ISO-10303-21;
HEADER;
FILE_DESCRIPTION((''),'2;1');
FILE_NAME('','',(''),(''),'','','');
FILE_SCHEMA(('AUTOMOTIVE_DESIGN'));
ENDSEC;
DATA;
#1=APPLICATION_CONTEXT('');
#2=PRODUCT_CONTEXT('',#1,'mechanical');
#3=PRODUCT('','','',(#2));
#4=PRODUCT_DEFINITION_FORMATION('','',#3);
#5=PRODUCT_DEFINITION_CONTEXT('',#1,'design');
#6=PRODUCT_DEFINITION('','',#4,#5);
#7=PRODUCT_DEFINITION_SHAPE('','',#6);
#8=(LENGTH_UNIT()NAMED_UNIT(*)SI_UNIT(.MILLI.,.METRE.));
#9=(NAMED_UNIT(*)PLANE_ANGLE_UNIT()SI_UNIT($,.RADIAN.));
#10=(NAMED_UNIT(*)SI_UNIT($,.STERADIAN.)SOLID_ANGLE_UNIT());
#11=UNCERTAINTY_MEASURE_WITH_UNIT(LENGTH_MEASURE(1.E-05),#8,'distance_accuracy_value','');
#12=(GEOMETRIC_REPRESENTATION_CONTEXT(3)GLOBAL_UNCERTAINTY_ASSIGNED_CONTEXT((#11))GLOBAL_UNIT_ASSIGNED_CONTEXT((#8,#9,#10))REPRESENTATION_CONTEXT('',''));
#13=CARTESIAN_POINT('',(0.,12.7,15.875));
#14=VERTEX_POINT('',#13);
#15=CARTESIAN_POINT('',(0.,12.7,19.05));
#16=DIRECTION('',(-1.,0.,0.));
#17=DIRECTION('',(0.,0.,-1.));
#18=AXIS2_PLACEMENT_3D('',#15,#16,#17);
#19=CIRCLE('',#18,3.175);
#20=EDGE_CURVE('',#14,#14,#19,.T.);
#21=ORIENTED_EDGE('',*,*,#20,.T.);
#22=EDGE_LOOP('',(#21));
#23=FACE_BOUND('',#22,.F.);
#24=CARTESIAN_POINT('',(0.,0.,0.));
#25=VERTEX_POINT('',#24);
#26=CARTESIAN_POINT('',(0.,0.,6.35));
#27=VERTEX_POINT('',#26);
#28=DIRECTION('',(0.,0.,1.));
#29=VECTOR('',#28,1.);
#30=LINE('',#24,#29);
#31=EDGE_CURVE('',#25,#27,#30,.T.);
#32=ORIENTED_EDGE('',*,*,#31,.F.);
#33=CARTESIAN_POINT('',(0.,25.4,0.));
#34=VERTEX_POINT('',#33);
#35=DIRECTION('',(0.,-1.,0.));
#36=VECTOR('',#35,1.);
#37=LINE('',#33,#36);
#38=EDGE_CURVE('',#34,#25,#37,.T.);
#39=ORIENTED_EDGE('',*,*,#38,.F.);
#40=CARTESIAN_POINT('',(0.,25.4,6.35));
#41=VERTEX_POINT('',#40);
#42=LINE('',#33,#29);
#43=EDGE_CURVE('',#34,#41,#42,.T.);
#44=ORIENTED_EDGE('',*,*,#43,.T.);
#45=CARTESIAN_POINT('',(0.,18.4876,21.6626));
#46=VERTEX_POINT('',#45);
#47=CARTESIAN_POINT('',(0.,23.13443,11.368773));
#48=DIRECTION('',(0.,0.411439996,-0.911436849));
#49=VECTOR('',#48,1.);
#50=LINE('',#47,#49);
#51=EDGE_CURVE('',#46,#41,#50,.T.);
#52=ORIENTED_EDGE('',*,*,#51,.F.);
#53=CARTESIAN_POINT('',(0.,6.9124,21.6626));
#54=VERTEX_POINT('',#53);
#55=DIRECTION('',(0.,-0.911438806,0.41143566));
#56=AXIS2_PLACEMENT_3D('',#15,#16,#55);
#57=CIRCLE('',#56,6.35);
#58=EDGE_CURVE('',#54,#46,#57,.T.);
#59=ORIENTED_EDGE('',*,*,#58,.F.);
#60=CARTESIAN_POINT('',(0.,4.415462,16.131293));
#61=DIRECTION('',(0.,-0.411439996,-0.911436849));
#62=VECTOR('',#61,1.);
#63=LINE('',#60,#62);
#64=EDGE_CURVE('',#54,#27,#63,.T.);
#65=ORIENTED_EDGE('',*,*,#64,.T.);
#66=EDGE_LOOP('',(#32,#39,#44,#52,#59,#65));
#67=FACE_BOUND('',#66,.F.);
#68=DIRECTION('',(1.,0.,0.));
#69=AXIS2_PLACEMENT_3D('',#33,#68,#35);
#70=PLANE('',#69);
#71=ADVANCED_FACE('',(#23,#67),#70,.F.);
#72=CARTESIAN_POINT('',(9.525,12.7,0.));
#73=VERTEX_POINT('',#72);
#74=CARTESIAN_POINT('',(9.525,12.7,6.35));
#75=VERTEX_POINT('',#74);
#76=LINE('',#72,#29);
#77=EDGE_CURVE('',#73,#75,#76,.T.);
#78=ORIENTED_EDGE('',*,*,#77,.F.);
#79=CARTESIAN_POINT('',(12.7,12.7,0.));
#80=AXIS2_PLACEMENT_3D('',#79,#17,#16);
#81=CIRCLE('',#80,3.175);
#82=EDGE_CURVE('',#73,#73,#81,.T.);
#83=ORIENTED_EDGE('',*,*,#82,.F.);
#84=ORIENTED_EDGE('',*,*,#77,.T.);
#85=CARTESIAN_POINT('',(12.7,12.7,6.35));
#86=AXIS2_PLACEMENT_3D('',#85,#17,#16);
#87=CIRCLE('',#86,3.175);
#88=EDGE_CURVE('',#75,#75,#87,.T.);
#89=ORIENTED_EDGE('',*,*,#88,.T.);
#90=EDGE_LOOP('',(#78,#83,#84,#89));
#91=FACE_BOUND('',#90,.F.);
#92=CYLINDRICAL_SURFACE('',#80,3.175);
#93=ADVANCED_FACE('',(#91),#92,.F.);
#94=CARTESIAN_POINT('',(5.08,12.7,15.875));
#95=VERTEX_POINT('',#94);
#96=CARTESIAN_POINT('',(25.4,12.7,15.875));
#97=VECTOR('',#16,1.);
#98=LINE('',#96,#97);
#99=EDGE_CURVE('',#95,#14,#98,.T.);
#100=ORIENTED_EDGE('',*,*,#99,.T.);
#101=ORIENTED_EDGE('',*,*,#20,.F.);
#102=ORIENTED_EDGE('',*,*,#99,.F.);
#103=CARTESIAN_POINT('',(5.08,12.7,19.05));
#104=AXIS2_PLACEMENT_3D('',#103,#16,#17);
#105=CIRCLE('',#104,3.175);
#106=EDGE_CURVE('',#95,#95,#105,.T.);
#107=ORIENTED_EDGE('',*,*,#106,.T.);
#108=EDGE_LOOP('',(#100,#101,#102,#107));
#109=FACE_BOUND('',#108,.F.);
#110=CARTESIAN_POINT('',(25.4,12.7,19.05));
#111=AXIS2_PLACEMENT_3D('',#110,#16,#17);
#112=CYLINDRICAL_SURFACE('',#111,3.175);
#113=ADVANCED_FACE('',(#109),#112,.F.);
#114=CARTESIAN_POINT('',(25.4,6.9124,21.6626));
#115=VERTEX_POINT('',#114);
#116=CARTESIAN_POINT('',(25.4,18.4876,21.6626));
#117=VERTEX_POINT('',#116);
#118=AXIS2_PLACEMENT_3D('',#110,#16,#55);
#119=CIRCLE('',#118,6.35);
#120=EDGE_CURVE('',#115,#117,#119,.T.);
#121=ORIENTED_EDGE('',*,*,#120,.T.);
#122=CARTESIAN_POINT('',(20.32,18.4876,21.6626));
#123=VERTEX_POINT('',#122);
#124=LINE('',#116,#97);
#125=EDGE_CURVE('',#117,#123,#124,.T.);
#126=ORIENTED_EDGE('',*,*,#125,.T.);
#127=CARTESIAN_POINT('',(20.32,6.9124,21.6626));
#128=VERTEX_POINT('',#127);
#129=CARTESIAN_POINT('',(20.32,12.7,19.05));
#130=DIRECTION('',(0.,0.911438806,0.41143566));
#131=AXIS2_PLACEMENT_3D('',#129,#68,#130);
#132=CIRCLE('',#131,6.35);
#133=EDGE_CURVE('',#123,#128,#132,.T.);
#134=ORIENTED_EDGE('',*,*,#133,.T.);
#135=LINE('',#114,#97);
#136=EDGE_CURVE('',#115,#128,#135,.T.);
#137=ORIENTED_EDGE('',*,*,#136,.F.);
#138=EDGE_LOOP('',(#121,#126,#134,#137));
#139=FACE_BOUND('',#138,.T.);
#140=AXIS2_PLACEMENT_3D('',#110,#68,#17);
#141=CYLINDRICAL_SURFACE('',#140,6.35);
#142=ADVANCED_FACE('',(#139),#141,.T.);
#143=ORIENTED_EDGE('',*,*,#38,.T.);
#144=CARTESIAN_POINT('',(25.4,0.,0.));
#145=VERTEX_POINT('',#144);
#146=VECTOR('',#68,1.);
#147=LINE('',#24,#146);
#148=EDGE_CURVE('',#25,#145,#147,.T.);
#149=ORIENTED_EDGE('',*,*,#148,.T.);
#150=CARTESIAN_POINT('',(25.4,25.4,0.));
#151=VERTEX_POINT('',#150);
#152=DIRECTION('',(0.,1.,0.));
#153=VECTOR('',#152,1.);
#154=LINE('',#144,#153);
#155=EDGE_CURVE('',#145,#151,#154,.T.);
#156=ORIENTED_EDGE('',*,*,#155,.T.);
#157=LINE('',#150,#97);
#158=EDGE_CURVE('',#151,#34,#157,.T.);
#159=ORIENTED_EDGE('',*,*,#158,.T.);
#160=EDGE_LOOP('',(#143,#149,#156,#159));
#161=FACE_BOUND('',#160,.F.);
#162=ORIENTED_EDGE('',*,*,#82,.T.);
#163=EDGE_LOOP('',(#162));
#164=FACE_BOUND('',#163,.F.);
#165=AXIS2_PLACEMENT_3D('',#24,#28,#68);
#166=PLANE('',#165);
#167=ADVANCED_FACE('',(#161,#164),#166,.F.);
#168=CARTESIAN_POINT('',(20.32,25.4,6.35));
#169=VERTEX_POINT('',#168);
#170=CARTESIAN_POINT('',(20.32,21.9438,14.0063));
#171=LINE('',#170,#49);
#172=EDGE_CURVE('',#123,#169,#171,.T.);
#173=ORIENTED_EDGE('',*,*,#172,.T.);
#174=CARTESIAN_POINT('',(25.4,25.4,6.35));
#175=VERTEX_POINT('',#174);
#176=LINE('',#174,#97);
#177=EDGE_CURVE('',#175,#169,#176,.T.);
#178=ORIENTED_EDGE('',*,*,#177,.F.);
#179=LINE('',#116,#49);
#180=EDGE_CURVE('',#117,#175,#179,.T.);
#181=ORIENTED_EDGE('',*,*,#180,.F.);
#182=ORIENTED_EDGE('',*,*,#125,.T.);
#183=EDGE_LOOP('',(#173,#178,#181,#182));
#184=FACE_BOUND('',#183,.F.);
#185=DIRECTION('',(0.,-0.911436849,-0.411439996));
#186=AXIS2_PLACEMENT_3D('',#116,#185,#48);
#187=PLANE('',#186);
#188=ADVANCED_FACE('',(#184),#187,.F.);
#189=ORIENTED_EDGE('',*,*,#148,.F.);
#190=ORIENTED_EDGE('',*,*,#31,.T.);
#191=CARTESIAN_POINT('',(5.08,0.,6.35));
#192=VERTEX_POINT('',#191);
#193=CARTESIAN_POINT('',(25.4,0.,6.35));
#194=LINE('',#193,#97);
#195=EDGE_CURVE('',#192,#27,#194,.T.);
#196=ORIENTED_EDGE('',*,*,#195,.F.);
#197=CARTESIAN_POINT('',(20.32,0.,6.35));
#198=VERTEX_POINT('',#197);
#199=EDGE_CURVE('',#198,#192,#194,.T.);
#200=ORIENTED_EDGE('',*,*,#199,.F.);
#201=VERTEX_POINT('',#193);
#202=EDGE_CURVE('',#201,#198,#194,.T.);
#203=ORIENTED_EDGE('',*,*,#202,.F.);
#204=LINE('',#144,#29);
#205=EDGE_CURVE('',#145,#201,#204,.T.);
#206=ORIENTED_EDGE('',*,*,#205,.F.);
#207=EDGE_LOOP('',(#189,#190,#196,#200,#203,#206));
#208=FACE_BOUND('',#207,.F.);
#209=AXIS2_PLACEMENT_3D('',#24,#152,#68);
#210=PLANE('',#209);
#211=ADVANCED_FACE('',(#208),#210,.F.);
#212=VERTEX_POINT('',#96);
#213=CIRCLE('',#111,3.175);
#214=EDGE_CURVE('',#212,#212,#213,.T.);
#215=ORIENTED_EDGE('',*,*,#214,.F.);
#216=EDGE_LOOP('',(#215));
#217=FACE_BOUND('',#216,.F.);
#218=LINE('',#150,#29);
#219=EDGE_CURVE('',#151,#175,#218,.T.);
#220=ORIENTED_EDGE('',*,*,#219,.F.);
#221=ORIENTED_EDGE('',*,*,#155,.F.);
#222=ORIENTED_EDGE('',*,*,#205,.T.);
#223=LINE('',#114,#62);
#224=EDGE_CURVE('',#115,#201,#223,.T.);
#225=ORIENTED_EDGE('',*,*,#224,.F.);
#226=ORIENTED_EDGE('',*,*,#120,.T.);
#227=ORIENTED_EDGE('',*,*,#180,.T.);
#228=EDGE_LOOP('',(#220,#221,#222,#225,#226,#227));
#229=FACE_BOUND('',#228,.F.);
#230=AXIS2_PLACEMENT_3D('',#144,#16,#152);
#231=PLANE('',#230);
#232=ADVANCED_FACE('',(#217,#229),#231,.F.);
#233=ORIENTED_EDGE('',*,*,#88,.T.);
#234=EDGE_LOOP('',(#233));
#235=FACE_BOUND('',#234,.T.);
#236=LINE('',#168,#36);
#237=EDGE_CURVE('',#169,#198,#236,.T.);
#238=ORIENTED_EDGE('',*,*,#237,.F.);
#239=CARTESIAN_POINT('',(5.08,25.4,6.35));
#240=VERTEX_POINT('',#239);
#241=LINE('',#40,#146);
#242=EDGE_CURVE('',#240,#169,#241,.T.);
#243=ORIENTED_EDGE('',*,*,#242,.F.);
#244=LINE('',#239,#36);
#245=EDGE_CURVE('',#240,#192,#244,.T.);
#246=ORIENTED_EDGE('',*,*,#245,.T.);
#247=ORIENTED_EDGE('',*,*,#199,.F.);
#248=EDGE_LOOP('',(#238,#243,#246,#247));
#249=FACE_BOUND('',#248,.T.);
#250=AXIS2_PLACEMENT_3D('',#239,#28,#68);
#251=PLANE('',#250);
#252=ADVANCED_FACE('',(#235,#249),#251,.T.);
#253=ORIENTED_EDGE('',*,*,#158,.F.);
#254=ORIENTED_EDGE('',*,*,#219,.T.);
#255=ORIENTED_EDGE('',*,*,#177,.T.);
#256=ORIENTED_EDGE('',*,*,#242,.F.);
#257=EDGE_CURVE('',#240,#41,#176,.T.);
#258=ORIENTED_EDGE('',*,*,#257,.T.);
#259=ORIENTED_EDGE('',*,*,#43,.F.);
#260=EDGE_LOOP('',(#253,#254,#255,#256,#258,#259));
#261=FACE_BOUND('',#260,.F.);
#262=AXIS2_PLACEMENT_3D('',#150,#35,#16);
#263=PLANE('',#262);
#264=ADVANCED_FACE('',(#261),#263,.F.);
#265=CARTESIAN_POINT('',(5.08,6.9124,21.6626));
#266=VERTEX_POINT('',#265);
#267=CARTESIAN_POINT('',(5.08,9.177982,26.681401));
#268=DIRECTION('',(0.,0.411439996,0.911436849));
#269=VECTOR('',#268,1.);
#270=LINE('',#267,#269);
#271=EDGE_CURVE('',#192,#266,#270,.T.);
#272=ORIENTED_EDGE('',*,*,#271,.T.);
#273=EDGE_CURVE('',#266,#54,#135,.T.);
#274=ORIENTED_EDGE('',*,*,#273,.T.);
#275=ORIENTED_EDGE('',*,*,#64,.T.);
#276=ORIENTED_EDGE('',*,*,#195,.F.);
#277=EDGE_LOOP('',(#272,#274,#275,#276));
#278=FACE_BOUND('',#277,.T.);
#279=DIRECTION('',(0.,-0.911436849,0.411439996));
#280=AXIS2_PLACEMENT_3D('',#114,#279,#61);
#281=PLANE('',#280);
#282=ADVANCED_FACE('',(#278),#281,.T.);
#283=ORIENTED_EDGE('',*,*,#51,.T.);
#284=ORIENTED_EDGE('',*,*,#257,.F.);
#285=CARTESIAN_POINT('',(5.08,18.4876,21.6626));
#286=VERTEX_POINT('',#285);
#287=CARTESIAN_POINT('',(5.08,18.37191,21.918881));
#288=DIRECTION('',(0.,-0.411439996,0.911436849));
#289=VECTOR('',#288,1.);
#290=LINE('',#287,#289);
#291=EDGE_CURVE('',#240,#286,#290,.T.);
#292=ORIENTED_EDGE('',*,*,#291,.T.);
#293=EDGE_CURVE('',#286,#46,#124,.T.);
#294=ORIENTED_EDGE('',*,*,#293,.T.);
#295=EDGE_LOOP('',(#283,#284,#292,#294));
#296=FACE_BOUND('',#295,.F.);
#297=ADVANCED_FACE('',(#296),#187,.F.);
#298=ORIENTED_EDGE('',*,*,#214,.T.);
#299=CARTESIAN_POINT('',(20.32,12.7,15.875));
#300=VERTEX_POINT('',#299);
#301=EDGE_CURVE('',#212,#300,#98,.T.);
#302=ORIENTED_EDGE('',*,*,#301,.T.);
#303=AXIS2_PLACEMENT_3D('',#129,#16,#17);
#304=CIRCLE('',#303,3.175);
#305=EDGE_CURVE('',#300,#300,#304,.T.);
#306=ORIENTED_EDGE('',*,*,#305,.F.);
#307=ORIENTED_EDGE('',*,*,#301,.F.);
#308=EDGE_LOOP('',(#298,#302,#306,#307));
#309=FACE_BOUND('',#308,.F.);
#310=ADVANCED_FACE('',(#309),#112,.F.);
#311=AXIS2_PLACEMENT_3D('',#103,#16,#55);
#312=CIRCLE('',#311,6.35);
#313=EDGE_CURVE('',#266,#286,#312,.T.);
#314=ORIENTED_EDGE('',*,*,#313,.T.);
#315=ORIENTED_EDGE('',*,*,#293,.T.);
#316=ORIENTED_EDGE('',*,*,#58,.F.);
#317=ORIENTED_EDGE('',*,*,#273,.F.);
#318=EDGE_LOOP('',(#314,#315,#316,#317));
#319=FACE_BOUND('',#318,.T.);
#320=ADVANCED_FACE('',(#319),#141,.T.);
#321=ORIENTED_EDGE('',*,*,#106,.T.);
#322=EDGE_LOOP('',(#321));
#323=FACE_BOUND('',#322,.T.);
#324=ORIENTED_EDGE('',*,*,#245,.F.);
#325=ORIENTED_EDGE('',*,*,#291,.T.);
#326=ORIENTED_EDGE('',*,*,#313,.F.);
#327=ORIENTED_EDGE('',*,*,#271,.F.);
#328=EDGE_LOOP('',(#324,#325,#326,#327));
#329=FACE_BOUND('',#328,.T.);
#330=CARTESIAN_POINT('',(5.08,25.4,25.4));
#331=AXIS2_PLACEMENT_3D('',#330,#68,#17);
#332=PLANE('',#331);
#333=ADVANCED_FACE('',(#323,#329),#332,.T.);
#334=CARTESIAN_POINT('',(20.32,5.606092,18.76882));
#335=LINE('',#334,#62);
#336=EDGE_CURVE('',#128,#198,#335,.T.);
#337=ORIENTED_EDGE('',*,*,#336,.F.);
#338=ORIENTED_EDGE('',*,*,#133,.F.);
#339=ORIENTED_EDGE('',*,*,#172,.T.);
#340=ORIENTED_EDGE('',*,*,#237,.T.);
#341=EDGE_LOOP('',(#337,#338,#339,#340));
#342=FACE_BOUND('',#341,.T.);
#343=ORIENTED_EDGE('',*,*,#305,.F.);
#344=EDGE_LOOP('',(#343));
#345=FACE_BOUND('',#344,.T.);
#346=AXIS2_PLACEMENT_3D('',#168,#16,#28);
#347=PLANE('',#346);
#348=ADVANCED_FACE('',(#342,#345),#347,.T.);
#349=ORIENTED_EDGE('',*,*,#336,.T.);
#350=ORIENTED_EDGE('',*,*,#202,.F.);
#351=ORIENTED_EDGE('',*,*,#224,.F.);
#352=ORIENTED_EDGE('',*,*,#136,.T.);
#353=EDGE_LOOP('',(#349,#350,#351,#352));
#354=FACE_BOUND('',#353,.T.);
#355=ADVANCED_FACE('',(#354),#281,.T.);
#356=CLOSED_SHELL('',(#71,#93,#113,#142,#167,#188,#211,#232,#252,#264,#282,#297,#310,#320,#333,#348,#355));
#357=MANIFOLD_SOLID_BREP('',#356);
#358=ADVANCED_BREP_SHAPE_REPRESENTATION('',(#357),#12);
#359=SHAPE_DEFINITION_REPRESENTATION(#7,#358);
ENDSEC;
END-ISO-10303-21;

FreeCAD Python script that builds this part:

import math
import FreeCAD as App
import Part
import Sketcher

V = App.Vector
Q = App.Units.Quantity

doc = App.newDocument("Part")
body = doc.addObject("PartDesign::Body", "Body")

# Sketch on XY plane
sketch1 = body.newObject("Sketcher::SketchObject", "Sketch")
sketch1.AttachmentSupport = (doc.getObject("XY_Plane"), [""])
sketch1.MapMode = "FlatFace"
sketch1.addGeometry([
    Part.LineSegment(V(0, 25, 0), V(0, 0, 0)),
    Part.LineSegment(V(0, 0, 0), V(25, 0, 0)),
    Part.LineSegment(V(25, 0, 0), V(25, 25, 0)),
    Part.LineSegment(V(25, 25, 0), V(0, 25, 0)),
], False)
sketch1.addConstraint([
    Sketcher.Constraint("Coincident", 0, 2, 1, 1),
    Sketcher.Constraint("Coincident", 1, 2, 2, 1),
    Sketcher.Constraint("Coincident", 2, 2, 3, 1),
    Sketcher.Constraint("Coincident", 3, 2, 0, 1),
    Sketcher.Constraint("Vertical", 0),
    Sketcher.Constraint("Horizontal", 1),
    Sketcher.Constraint("Vertical", 2),
    Sketcher.Constraint("Horizontal", 3),
    Sketcher.Constraint("Coincident", 0, 2, -1, 1),
    Sketcher.Constraint("Equal", 3, 0),
    Sketcher.Constraint("DistanceX", 1, 1, 1, 2, Q("1 in")),
])
pad1 = body.newObject("PartDesign::Pad", "Pad")
pad1.Profile = sketch1
pad1.Length = Q("1 in")

# Sketch on YZ plane
sketch2 = body.newObject("Sketcher::SketchObject", "Sketch001")
sketch2.AttachmentSupport = (doc.getObject("YZ_Plane"), [""])
sketch2.MapMode = "FlatFace"
sketch2.AttachmentOffset = App.Placement(V(0, 0, 1 * 25.4), App.Rotation())
sketch2.addGeometry([
    Part.LineSegment(V(0, 25, 0), V(0, 6, 0)),  # 0
    Part.LineSegment(V(0, 6, 0), V(7, 22, 0)),  # 1
    Part.ArcOfCircle(Part.Circle(V(13, 19, 0), V(0, 0, 1), 6), math.radians(90), math.radians(156)),  # 2
    Part.LineSegment(V(13, 25, 0), V(0, 25, 0)),  # 3
    Part.LineSegment(V(18, 22, 0), V(25, 6, 0)),  # 4
    Part.LineSegment(V(25, 6, 0), V(25, 25, 0)),  # 5
    Part.LineSegment(V(25, 25, 0), V(13, 25, 0)),  # 6
    Part.ArcOfCircle(Part.Circle(V(13, 19, 0), V(0, 0, 1), 6), math.radians(24), math.radians(90)),  # 7
], False)
sketch2.addConstraint([
    Sketcher.Constraint("Coincident", 0, 2, 1, 1),
    Sketcher.Constraint("Tangent", 1, 2, 2, 2),
    Sketcher.Constraint("Tangent", 2, 1, 3, 1),
    Sketcher.Constraint("Coincident", 3, 2, 0, 1),
    Sketcher.Constraint("Coincident", 4, 2, 5, 1),
    Sketcher.Constraint("Coincident", 5, 2, 6, 1),
    Sketcher.Constraint("Tangent", 6, 2, 7, 2),
    Sketcher.Constraint("Tangent", 7, 1, 4, 1),
    Sketcher.Constraint("Vertical", 0),
    Sketcher.Constraint("Horizontal", 3),
    Sketcher.Constraint("Vertical", 5),
    Sketcher.Constraint("Horizontal", 6),
    Sketcher.Constraint("Coincident", 7, 3, 2, 3),
    Sketcher.Constraint("Equal", 2, 7),
    Sketcher.Constraint("PointOnObject", 0, 2, -2),
    Sketcher.Constraint("Horizontal", 0, 2, 4, 2),
    Sketcher.Constraint("Horizontal", 1, 2, 7, 1),
    Sketcher.Constraint("Radius", 2, Q("0.25 in")),
    Sketcher.Constraint("DistanceX", 3, 2, 3, 1, Q("0.5 in")),
    Sketcher.Constraint("DistanceY", 0, 2, 2, 3, Q("0.5 in")),
    Sketcher.Constraint("DistanceY", -1, 1, 0, 2, Q("0.25 in")),
])
pocket1 = body.newObject("PartDesign::Pocket", "Pocket")
pocket1.Profile = sketch2
pocket1.Type = "ThroughAll"

# Sketch on YZ plane
sketch3 = body.newObject("Sketcher::SketchObject", "Sketch002")
sketch3.AttachmentSupport = (doc.getObject("YZ_Plane"), [""])
sketch3.MapMode = "FlatFace"
sketch3.AttachmentOffset = App.Placement(V(0, 0, 1 * 25.4), App.Rotation())
sketch3.addGeometry(Part.Circle(V(12.7, 19.1, 0), V(0, 0, 1), 3.2), False)
sketch3.addConstraint([
    Sketcher.Constraint("Diameter", 0, Q("0.25 in")),
    Sketcher.Constraint("DistanceX", -1, 1, 0, 3, Q("0.5 in")),
    Sketcher.Constraint("DistanceY", -1, 1, 0, 3, Q("0.75 in")),
])
doc.recompute()
hole = body.newObject("PartDesign::Hole", "Hole")
hole.Profile = sketch3
hole.ThreadType = "None"
hole.Diameter = Q("0.25 in")
hole.DepthType = "ThroughAll"

# Sketch on XZ plane
sketch4 = body.newObject("Sketcher::SketchObject", "Sketch003")
sketch4.AttachmentSupport = (doc.getObject("XZ_Plane"), [""])
sketch4.MapMode = "FlatFace"
sketch4.AttachmentOffset = App.Placement(V(0, 0, -1 * 25.4), App.Rotation())
sketch4.addGeometry([
    Part.LineSegment(V(20, 6, 0), V(5, 6, 0)),
    Part.LineSegment(V(5, 6, 0), V(5, 25, 0)),
    Part.LineSegment(V(5, 25, 0), V(20, 25, 0)),
    Part.LineSegment(V(20, 25, 0), V(20, 6, 0)),
], False)
sketch4.addConstraint([
    Sketcher.Constraint("Coincident", 0, 2, 1, 1),
    Sketcher.Constraint("Coincident", 1, 2, 2, 1),
    Sketcher.Constraint("Coincident", 2, 2, 3, 1),
    Sketcher.Constraint("Coincident", 3, 2, 0, 1),
    Sketcher.Constraint("Horizontal", 0),
    Sketcher.Constraint("Vertical", 1),
    Sketcher.Constraint("Horizontal", 2),
    Sketcher.Constraint("Vertical", 3),
    Sketcher.Constraint("DistanceX", -1, 1, 0, 2, Q("0.2 in")),
    Sketcher.Constraint("DistanceX", 0, 2, 0, 1, Q("0.6 in")),
    Sketcher.Constraint("DistanceY", -1, 1, 1, 2, Q("1 in")),
    Sketcher.Constraint("DistanceY", 1, 1, 1, 2, Q("0.75 in")),
])
pocket2 = body.newObject("PartDesign::Pocket", "Pocket001")
pocket2.Profile = sketch4
pocket2.Type = "ThroughAll"
pocket2.Reversed = True

# Sketch on XY plane
sketch5 = body.newObject("Sketcher::SketchObject", "Sketch004")
sketch5.AttachmentSupport = (doc.getObject("XY_Plane"), [""])
sketch5.MapMode = "FlatFace"
sketch5.addGeometry(Part.Circle(V(12.7, 12.7, 0), V(0, 0, 1), 3.2), False)
sketch5.addConstraint([
    Sketcher.Constraint("Diameter", 0, Q("0.25 in")),
    Sketcher.Constraint("DistanceX", -1, 1, 0, 3, Q("0.5 in")),
    Sketcher.Constraint("DistanceY", -1, 1, 0, 3, Q("0.5 in")),
])
pocket3 = body.newObject("PartDesign::Pocket", "Pocket002")
pocket3.Profile = sketch5
pocket3.Type = "ThroughAll"
pocket3.Reversed = True

doc.recompute()
